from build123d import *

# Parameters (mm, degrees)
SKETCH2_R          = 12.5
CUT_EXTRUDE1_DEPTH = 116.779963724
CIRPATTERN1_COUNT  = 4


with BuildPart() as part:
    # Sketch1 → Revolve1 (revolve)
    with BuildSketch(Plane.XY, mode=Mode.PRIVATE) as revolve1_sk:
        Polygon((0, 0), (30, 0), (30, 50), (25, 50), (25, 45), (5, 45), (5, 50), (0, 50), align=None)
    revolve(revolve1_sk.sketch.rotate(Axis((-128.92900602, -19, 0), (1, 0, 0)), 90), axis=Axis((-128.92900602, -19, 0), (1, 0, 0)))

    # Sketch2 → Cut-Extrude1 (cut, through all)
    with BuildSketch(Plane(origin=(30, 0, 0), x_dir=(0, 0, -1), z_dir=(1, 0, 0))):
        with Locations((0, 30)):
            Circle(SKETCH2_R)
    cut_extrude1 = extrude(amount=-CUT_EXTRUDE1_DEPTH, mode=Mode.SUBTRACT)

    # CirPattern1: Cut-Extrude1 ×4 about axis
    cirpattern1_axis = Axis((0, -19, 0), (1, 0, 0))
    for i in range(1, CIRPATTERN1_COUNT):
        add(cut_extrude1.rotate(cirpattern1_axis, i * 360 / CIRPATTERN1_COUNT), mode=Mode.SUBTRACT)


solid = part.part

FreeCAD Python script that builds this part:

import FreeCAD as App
import Part
import Sketcher
from FreeCAD import Vector
Q = App.Units.Quantity


def add_polygon(sketch, points):
    """Adds a closed chain of lines whose ends are joined by coincident constraints."""
    first, n = sketch.GeometryCount, len(points)
    for a, b in zip(points, points[1:] + points[:1]):
        sketch.addGeometry(Part.LineSegment(App.Vector(*a, 0), App.Vector(*b, 0)), False)
    for i in range(n):
        sketch.addConstraint(Sketcher.Constraint("Coincident", first + i, 2, first + (i + 1) % n, 1))

doc = App.newDocument("Part")
body = doc.addObject("PartDesign::Body", "Body")

sketch1 = body.newObject("Sketcher::SketchObject", "Sketch")
sketch1.AttachmentSupport = (doc.getObject("XY_Plane"), [""])
sketch1.MapMode = "FlatFace"
add_polygon(sketch1, [(0, 0), (30, 0), (30, 50), (25, 50), (25, 45), (5, 45), (5, 50), (0, 50)])
sketch1.addGeometry(Part.LineSegment(Vector(0, -19, 0), Vector(30, -19, 0)), True)
sketch1.addConstraint([
    Sketcher.Constraint("Horizontal", 0),
    Sketcher.Constraint("Vertical", 1),
    Sketcher.Constraint("Horizontal", 2),
    Sketcher.Constraint("Vertical", 3),
    Sketcher.Constraint("Horizontal", 4),
    Sketcher.Constraint("Vertical", 5),
    Sketcher.Constraint("Horizontal", 6),
    Sketcher.Constraint("Vertical", 7),
    Sketcher.Constraint("Horizontal", 8),
    Sketcher.Constraint("Coincident", 7, 2, -1, 1),
    Sketcher.Constraint("PointOnObject", 8, 1, -2),
    Sketcher.Constraint("Horizontal", 2, 2, 5, 2),
    Sketcher.Constraint("Vertical", 1, 2, 8, 2),
    Sketcher.Constraint("Equal", 2, 6),
    Sketcher.Constraint("Equal", 6, 3),
    Sketcher.Constraint("DistanceX", 0, 1, 0, 2, Q("30 mm")),
    Sketcher.Constraint("DistanceX", 2, 2, 2, 1, Q("5 mm")),
    Sketcher.Constraint("DistanceY", 1, 1, 1, 2, Q("50 mm")),
    Sketcher.Constraint("DistanceY", 8, 1, -1, 1, Q("19 mm")),
])
revolution = body.newObject("PartDesign::Revolution", "Revolution")
revolution.Profile = sketch1
revolution.ReferenceAxis = (sketch1, ["Axis0"])
revolution.Angle = 360

sketch2 = body.newObject("Sketcher::SketchObject", "Sketch001")
sketch2.AttachmentSupport = (doc.getObject("YZ_Plane"), [""])
sketch2.MapMode = "FlatFace"
sketch2.AttachmentOffset = App.Placement(Vector(0, 0, 30), App.Rotation())
sketch2.addGeometry(Part.Circle(Vector(30, 0, 0), Vector(0, 0, 1), 12.5), False)
sketch2.addConstraint([
    Sketcher.Constraint("PointOnObject", 0, 3, -1),
    Sketcher.Constraint("Diameter", 0, Q("25 mm")),
    Sketcher.Constraint("DistanceX", -1, 1, 0, 3, Q("30 mm")),
])
pocket1 = body.newObject("PartDesign::Pocket", "Pocket")
pocket1.Profile = sketch2
pocket1.Type = "ThroughAll"
doc.recompute()

datumline = body.newObject("PartDesign::Line", "DatumLine")
datumline.Placement = App.Placement(Vector(0, -19, 0), App.Rotation(Vector(0, 0, 1), Vector(1, 0, 0)))
polarpattern = body.newObject("PartDesign::PolarPattern", "PolarPattern")
polarpattern.Originals = [pocket1]
polarpattern.Axis = (datumline, [""])
polarpattern.Angle = 360
polarpattern.Occurrences = 4
body.Tip = polarpattern

doc.recompute()
